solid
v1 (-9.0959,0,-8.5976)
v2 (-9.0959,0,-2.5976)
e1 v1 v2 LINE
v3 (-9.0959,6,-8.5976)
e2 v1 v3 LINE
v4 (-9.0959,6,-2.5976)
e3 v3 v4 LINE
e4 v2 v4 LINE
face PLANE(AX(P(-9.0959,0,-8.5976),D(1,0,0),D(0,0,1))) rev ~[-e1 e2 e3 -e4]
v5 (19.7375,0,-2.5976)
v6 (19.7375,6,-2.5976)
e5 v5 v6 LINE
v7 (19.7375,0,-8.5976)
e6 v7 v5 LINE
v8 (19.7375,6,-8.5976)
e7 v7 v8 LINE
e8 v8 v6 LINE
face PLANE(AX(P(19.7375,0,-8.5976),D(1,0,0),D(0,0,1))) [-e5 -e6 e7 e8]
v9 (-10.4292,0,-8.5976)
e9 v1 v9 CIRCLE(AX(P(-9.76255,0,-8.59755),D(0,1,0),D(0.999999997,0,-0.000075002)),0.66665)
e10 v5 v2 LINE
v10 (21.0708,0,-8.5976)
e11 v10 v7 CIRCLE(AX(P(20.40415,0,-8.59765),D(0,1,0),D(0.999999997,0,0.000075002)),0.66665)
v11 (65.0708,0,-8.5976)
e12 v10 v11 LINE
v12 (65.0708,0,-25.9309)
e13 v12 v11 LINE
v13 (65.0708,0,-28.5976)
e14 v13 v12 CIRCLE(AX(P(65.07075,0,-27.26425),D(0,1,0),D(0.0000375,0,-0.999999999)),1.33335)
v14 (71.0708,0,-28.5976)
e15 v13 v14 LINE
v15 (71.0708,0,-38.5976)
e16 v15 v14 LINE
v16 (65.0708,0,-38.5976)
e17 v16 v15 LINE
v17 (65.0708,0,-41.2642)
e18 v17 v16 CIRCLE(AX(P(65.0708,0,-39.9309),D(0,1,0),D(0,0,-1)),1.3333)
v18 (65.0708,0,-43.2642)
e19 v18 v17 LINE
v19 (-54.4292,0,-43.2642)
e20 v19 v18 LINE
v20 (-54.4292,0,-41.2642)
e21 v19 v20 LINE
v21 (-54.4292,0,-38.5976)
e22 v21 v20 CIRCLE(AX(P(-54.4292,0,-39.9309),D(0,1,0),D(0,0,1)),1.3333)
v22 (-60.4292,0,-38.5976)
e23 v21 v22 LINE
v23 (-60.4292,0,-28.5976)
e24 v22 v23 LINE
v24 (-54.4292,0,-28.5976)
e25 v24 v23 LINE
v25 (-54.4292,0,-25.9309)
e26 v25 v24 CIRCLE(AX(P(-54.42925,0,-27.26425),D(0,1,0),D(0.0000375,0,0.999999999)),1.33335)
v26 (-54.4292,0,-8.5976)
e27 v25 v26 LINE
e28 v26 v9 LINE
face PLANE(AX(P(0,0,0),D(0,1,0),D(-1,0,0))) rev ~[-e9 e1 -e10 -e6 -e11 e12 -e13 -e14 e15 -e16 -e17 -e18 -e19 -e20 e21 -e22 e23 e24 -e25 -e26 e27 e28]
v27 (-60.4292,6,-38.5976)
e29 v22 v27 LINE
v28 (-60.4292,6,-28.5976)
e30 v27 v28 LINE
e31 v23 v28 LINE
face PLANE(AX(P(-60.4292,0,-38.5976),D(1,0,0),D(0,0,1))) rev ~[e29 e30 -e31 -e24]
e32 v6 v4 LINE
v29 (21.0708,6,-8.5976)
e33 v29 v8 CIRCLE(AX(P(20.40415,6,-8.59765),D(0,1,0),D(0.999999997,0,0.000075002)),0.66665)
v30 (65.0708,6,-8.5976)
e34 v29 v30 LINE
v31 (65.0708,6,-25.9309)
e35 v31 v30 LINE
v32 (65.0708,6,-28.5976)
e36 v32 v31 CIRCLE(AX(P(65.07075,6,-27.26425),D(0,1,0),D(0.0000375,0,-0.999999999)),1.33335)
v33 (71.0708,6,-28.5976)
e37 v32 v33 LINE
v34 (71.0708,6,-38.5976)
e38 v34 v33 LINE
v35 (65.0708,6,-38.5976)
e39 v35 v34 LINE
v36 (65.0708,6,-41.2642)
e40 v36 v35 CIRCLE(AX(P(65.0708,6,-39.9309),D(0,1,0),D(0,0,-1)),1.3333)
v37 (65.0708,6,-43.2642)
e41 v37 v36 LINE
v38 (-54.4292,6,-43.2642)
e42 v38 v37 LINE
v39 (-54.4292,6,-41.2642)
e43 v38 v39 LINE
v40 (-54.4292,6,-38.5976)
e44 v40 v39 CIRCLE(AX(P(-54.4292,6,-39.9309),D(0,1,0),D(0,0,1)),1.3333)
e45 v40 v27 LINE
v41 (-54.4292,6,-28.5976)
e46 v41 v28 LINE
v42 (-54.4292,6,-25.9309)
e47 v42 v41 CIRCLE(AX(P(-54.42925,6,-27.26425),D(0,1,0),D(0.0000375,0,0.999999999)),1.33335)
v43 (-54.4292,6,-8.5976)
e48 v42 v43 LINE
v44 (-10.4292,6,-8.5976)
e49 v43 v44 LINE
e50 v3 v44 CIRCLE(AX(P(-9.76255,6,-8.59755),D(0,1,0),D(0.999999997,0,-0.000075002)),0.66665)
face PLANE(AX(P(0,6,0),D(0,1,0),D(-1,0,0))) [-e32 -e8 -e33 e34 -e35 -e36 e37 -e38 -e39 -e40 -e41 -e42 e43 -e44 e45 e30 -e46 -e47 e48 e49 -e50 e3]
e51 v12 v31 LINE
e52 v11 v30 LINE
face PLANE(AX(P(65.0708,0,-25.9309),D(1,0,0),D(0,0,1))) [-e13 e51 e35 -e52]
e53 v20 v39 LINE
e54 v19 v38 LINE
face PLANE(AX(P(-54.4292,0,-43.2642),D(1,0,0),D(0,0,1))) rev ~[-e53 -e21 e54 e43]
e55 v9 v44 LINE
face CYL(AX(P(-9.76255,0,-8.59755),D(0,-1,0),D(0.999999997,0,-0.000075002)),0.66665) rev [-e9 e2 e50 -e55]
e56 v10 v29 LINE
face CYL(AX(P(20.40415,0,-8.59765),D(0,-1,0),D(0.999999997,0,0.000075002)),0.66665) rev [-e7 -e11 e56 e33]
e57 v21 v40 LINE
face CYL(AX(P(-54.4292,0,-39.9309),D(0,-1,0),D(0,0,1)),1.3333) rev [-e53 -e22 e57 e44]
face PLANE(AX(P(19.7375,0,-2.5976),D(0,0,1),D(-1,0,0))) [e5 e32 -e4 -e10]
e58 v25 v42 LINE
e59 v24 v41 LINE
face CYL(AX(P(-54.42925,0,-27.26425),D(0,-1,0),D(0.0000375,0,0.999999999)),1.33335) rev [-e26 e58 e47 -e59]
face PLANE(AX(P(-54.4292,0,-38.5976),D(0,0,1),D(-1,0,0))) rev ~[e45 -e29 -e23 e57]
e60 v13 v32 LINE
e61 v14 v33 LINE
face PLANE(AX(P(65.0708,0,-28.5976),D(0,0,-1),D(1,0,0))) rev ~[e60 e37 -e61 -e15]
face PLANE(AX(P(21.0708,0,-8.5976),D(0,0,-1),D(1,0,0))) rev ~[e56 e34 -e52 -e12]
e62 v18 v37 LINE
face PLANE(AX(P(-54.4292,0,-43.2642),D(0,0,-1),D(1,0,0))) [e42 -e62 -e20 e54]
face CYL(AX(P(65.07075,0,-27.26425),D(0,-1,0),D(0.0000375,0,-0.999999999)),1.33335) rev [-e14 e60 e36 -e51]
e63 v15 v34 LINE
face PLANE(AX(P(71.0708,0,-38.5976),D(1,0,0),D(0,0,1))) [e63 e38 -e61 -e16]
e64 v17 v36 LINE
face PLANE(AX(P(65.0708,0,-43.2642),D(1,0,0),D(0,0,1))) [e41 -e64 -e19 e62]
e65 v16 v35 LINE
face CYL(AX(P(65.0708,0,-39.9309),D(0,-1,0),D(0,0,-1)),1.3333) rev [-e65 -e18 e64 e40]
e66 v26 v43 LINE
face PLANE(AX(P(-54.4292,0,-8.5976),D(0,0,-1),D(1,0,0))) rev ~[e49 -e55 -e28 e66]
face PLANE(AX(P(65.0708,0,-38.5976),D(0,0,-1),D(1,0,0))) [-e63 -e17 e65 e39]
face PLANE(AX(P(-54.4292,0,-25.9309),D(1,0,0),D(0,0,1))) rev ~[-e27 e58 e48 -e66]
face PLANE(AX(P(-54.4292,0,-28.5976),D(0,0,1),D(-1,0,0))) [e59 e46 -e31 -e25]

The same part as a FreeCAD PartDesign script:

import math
import FreeCAD as App
import Part
import Sketcher

doc = App.newDocument("Part")
body = doc.addObject("PartDesign::Body", "Body")

# Sketch on XZ plane
sketch1 = doc.addObject("Sketcher::SketchObject", "Sketch")
body.addObject(sketch1)
sketch1.AttachmentSupport = (doc.XZ_Plane, [""])
sketch1.MapMode = "FlatFace"
sketch1.addGeometry([
    Part.LineSegment(App.Vector(65.1, -43.3, 0), App.Vector(-54.4, -43.3, 0)),  # 0
    Part.LineSegment(App.Vector(-54.4, -43.3, 0), App.Vector(-54.4, -41.3, 0)),  # 1
    Part.ArcOfCircle(Part.Circle(App.Vector(-54.4, -39.9, 0), App.Vector(0, 0, 1), 1.3), math.radians(-90), math.radians(90)),  # 2
    Part.LineSegment(App.Vector(-54.4, -38.6, 0), App.Vector(-60.4, -38.6, 0)),  # 3
    Part.LineSegment(App.Vector(-60.4, -38.6, 0), App.Vector(-60.4, -28.6, 0)),  # 4
    Part.LineSegment(App.Vector(-60.4, -28.6, 0), App.Vector(-54.4, -28.6, 0)),  # 5
    Part.ArcOfCircle(Part.Circle(App.Vector(-54.4, -27.3, 0), App.Vector(0, 0, 1), 1.3), math.radians(-90), math.radians(90)),  # 6
    Part.LineSegment(App.Vector(-54.4, -25.9, 0), App.Vector(-54.4, -8.6, 0)),  # 7
    Part.LineSegment(App.Vector(-54.4, -8.6, 0), App.Vector(-10.4, -8.6, 0)),  # 8
    Part.ArcOfCircle(Part.Circle(App.Vector(-9.8, -8.6, 0), App.Vector(0, 0, 1), 0.7), math.radians(180), math.radians(360)),  # 9
    Part.LineSegment(App.Vector(-9.1, -8.6, 0), App.Vector(-9.1, -2.6, 0)),  # 10
    Part.LineSegment(App.Vector(-9.1, -2.6, 0), App.Vector(19.7, -2.6, 0)),  # 11
    Part.LineSegment(App.Vector(19.7, -2.6, 0), App.Vector(19.7, -8.6, 0)),  # 12
    Part.ArcOfCircle(Part.Circle(App.Vector(20.4, -8.6, 0), App.Vector(0, 0, 1), 0.7), math.radians(180), math.radians(360)),  # 13
    Part.LineSegment(App.Vector(21.1, -8.6, 0), App.Vector(65.1, -8.6, 0)),  # 14
    Part.LineSegment(App.Vector(65.1, -8.6, 0), App.Vector(65.1, -25.9, 0)),  # 15
    Part.ArcOfCircle(Part.Circle(App.Vector(65.1, -27.3, 0), App.Vector(0, 0, 1), 1.3), math.radians(90), math.radians(270)),  # 16
    Part.LineSegment(App.Vector(65.1, -28.6, 0), App.Vector(71.1, -28.6, 0)),  # 17
    Part.LineSegment(App.Vector(71.1, -28.6, 0), App.Vector(71.1, -38.6, 0)),  # 18
    Part.LineSegment(App.Vector(71.1, -38.6, 0), App.Vector(65.1, -38.6, 0)),  # 19
    Part.ArcOfCircle(Part.Circle(App.Vector(65.1, -39.9, 0), App.Vector(0, 0, 1), 1.3), math.radians(90), math.radians(270)),  # 20
    Part.LineSegment(App.Vector(65.1, -41.3, 0), App.Vector(65.1, -43.3, 0)),  # 21
], False)
sketch1.addConstraint([
    Sketcher.Constraint("Coincident", 0, 2, 1, 1),
    Sketcher.Constraint("Coincident", 1, 2, 2, 1),
    Sketcher.Constraint("Tangent", 2, 2, 3, 1),
    Sketcher.Constraint("Coincident", 3, 2, 4, 1),
    Sketcher.Constraint("Coincident", 4, 2, 5, 1),
    Sketcher.Constraint("Tangent", 5, 2, 6, 1),
    Sketcher.Constraint("Coincident", 6, 2, 7, 1),
    Sketcher.Constraint("Coincident", 7, 2, 8, 1),
    Sketcher.Constraint("Coincident", 8, 2, 9, 1),
    Sketcher.Constraint("Tangent", 9, 2, 10, 1),
    Sketcher.Constraint("Coincident", 10, 2, 11, 1),
    Sketcher.Constraint("Coincident", 11, 2, 12, 1),
    Sketcher.Constraint("Tangent", 12, 2, 13, 1),
    Sketcher.Constraint("Coincident", 13, 2, 14, 1),
    Sketcher.Constraint("Coincident", 14, 2, 15, 1),
    Sketcher.Constraint("Coincident", 15, 2, 16, 1),
    Sketcher.Constraint("Tangent", 16, 2, 17, 1),
    Sketcher.Constraint("Coincident", 17, 2, 18, 1),
    Sketcher.Constraint("Coincident", 18, 2, 19, 1),
    Sketcher.Constraint("Tangent", 19, 2, 20, 1),
    Sketcher.Constraint("Coincident", 20, 2, 21, 1),
    Sketcher.Constraint("Coincident", 21, 2, 0, 1),
    Sketcher.Constraint("Horizontal", 0),
    Sketcher.Constraint("Vertical", 1),
    Sketcher.Constraint("Horizontal", 3),
    Sketcher.Constraint("Vertical", 4),
    Sketcher.Constraint("Horizontal", 5),
    Sketcher.Constraint("Vertical", 7),
    Sketcher.Constraint("Horizontal", 8),
    Sketcher.Constraint("Vertical", 10),
    Sketcher.Constraint("Horizontal", 11),
    Sketcher.Constraint("Vertical", 12),
    Sketcher.Constraint("Horizontal", 14),
    Sketcher.Constraint("Vertical", 15),
    Sketcher.Constraint("Horizontal", 17),
    Sketcher.Constraint("Vertical", 18),
    Sketcher.Constraint("Horizontal", 19),
    Sketcher.Constraint("Vertical", 21),
    Sketcher.Constraint("Equal", 2, 6),
    Sketcher.Constraint("Equal", 9, 13),
    Sketcher.Constraint("Equal", 6, 16),
    Sketcher.Constraint("Equal", 16, 20),
    Sketcher.Constraint("Horizontal", 9, 3, 13, 3),
    Sketcher.Constraint("Horizontal", 6, 3, 16, 3),
    Sketcher.Constraint("Horizontal", 2, 3, 20, 3),
    Sketcher.Constraint("Horizontal", 13, 3, 7, 2),
    Sketcher.Constraint("Horizontal", 12, 2, 13, 2),
    Sketcher.Constraint("Vertical", 2, 3, 6, 3),
    Sketcher.Constraint("Vertical", 16, 3, 20, 3),
    Sketcher.Constraint("Vertical", 6, 3, 0, 2),
    Sketcher.Constraint("Vertical", 5, 2, 6, 2),
    Sketcher.Constraint("Vertical", 20, 3, 14, 2),
    Sketcher.Constraint("Vertical", 19, 2, 20, 2),
    Sketcher.Constraint("Equal", 8, 14),
    Sketcher.Constraint("Equal", 5, 17),
    Sketcher.Constraint("Equal", 19, 10),
    Sketcher.Constraint("DistanceX", 3, 2, 3, 1, 6.0),
    Sketcher.Constraint("DistanceX", 8, 1, 8, 2, 44.0),
    Sketcher.Constraint("DistanceY", 1, 1, 1, 2, 2.0),
    Sketcher.Constraint("DistanceY", 4, 1, 4, 2, 10.0),
    Sketcher.Constraint("DistanceX", 0, 2, 0, 1, 119.5),
    Sketcher.Constraint("DistanceY", 5, 2, 7, 2, 20.0),
    Sketcher.Constraint("Radius", 2, 1.3333),
    Sketcher.Constraint("Radius", 9, 0.6666),
    Sketcher.Constraint("DistanceY", 2, 3, -1, 1, 39.931),
    Sketcher.Constraint("DistanceX", -1, 1, 13, 3, 20.404),
])
pad1 = doc.addObject("PartDesign::Pad", "Pad")
body.addObject(pad1)
pad1.Profile = sketch1
pad1.Length = 6
pad1.Reversed = True

doc.recompute()
